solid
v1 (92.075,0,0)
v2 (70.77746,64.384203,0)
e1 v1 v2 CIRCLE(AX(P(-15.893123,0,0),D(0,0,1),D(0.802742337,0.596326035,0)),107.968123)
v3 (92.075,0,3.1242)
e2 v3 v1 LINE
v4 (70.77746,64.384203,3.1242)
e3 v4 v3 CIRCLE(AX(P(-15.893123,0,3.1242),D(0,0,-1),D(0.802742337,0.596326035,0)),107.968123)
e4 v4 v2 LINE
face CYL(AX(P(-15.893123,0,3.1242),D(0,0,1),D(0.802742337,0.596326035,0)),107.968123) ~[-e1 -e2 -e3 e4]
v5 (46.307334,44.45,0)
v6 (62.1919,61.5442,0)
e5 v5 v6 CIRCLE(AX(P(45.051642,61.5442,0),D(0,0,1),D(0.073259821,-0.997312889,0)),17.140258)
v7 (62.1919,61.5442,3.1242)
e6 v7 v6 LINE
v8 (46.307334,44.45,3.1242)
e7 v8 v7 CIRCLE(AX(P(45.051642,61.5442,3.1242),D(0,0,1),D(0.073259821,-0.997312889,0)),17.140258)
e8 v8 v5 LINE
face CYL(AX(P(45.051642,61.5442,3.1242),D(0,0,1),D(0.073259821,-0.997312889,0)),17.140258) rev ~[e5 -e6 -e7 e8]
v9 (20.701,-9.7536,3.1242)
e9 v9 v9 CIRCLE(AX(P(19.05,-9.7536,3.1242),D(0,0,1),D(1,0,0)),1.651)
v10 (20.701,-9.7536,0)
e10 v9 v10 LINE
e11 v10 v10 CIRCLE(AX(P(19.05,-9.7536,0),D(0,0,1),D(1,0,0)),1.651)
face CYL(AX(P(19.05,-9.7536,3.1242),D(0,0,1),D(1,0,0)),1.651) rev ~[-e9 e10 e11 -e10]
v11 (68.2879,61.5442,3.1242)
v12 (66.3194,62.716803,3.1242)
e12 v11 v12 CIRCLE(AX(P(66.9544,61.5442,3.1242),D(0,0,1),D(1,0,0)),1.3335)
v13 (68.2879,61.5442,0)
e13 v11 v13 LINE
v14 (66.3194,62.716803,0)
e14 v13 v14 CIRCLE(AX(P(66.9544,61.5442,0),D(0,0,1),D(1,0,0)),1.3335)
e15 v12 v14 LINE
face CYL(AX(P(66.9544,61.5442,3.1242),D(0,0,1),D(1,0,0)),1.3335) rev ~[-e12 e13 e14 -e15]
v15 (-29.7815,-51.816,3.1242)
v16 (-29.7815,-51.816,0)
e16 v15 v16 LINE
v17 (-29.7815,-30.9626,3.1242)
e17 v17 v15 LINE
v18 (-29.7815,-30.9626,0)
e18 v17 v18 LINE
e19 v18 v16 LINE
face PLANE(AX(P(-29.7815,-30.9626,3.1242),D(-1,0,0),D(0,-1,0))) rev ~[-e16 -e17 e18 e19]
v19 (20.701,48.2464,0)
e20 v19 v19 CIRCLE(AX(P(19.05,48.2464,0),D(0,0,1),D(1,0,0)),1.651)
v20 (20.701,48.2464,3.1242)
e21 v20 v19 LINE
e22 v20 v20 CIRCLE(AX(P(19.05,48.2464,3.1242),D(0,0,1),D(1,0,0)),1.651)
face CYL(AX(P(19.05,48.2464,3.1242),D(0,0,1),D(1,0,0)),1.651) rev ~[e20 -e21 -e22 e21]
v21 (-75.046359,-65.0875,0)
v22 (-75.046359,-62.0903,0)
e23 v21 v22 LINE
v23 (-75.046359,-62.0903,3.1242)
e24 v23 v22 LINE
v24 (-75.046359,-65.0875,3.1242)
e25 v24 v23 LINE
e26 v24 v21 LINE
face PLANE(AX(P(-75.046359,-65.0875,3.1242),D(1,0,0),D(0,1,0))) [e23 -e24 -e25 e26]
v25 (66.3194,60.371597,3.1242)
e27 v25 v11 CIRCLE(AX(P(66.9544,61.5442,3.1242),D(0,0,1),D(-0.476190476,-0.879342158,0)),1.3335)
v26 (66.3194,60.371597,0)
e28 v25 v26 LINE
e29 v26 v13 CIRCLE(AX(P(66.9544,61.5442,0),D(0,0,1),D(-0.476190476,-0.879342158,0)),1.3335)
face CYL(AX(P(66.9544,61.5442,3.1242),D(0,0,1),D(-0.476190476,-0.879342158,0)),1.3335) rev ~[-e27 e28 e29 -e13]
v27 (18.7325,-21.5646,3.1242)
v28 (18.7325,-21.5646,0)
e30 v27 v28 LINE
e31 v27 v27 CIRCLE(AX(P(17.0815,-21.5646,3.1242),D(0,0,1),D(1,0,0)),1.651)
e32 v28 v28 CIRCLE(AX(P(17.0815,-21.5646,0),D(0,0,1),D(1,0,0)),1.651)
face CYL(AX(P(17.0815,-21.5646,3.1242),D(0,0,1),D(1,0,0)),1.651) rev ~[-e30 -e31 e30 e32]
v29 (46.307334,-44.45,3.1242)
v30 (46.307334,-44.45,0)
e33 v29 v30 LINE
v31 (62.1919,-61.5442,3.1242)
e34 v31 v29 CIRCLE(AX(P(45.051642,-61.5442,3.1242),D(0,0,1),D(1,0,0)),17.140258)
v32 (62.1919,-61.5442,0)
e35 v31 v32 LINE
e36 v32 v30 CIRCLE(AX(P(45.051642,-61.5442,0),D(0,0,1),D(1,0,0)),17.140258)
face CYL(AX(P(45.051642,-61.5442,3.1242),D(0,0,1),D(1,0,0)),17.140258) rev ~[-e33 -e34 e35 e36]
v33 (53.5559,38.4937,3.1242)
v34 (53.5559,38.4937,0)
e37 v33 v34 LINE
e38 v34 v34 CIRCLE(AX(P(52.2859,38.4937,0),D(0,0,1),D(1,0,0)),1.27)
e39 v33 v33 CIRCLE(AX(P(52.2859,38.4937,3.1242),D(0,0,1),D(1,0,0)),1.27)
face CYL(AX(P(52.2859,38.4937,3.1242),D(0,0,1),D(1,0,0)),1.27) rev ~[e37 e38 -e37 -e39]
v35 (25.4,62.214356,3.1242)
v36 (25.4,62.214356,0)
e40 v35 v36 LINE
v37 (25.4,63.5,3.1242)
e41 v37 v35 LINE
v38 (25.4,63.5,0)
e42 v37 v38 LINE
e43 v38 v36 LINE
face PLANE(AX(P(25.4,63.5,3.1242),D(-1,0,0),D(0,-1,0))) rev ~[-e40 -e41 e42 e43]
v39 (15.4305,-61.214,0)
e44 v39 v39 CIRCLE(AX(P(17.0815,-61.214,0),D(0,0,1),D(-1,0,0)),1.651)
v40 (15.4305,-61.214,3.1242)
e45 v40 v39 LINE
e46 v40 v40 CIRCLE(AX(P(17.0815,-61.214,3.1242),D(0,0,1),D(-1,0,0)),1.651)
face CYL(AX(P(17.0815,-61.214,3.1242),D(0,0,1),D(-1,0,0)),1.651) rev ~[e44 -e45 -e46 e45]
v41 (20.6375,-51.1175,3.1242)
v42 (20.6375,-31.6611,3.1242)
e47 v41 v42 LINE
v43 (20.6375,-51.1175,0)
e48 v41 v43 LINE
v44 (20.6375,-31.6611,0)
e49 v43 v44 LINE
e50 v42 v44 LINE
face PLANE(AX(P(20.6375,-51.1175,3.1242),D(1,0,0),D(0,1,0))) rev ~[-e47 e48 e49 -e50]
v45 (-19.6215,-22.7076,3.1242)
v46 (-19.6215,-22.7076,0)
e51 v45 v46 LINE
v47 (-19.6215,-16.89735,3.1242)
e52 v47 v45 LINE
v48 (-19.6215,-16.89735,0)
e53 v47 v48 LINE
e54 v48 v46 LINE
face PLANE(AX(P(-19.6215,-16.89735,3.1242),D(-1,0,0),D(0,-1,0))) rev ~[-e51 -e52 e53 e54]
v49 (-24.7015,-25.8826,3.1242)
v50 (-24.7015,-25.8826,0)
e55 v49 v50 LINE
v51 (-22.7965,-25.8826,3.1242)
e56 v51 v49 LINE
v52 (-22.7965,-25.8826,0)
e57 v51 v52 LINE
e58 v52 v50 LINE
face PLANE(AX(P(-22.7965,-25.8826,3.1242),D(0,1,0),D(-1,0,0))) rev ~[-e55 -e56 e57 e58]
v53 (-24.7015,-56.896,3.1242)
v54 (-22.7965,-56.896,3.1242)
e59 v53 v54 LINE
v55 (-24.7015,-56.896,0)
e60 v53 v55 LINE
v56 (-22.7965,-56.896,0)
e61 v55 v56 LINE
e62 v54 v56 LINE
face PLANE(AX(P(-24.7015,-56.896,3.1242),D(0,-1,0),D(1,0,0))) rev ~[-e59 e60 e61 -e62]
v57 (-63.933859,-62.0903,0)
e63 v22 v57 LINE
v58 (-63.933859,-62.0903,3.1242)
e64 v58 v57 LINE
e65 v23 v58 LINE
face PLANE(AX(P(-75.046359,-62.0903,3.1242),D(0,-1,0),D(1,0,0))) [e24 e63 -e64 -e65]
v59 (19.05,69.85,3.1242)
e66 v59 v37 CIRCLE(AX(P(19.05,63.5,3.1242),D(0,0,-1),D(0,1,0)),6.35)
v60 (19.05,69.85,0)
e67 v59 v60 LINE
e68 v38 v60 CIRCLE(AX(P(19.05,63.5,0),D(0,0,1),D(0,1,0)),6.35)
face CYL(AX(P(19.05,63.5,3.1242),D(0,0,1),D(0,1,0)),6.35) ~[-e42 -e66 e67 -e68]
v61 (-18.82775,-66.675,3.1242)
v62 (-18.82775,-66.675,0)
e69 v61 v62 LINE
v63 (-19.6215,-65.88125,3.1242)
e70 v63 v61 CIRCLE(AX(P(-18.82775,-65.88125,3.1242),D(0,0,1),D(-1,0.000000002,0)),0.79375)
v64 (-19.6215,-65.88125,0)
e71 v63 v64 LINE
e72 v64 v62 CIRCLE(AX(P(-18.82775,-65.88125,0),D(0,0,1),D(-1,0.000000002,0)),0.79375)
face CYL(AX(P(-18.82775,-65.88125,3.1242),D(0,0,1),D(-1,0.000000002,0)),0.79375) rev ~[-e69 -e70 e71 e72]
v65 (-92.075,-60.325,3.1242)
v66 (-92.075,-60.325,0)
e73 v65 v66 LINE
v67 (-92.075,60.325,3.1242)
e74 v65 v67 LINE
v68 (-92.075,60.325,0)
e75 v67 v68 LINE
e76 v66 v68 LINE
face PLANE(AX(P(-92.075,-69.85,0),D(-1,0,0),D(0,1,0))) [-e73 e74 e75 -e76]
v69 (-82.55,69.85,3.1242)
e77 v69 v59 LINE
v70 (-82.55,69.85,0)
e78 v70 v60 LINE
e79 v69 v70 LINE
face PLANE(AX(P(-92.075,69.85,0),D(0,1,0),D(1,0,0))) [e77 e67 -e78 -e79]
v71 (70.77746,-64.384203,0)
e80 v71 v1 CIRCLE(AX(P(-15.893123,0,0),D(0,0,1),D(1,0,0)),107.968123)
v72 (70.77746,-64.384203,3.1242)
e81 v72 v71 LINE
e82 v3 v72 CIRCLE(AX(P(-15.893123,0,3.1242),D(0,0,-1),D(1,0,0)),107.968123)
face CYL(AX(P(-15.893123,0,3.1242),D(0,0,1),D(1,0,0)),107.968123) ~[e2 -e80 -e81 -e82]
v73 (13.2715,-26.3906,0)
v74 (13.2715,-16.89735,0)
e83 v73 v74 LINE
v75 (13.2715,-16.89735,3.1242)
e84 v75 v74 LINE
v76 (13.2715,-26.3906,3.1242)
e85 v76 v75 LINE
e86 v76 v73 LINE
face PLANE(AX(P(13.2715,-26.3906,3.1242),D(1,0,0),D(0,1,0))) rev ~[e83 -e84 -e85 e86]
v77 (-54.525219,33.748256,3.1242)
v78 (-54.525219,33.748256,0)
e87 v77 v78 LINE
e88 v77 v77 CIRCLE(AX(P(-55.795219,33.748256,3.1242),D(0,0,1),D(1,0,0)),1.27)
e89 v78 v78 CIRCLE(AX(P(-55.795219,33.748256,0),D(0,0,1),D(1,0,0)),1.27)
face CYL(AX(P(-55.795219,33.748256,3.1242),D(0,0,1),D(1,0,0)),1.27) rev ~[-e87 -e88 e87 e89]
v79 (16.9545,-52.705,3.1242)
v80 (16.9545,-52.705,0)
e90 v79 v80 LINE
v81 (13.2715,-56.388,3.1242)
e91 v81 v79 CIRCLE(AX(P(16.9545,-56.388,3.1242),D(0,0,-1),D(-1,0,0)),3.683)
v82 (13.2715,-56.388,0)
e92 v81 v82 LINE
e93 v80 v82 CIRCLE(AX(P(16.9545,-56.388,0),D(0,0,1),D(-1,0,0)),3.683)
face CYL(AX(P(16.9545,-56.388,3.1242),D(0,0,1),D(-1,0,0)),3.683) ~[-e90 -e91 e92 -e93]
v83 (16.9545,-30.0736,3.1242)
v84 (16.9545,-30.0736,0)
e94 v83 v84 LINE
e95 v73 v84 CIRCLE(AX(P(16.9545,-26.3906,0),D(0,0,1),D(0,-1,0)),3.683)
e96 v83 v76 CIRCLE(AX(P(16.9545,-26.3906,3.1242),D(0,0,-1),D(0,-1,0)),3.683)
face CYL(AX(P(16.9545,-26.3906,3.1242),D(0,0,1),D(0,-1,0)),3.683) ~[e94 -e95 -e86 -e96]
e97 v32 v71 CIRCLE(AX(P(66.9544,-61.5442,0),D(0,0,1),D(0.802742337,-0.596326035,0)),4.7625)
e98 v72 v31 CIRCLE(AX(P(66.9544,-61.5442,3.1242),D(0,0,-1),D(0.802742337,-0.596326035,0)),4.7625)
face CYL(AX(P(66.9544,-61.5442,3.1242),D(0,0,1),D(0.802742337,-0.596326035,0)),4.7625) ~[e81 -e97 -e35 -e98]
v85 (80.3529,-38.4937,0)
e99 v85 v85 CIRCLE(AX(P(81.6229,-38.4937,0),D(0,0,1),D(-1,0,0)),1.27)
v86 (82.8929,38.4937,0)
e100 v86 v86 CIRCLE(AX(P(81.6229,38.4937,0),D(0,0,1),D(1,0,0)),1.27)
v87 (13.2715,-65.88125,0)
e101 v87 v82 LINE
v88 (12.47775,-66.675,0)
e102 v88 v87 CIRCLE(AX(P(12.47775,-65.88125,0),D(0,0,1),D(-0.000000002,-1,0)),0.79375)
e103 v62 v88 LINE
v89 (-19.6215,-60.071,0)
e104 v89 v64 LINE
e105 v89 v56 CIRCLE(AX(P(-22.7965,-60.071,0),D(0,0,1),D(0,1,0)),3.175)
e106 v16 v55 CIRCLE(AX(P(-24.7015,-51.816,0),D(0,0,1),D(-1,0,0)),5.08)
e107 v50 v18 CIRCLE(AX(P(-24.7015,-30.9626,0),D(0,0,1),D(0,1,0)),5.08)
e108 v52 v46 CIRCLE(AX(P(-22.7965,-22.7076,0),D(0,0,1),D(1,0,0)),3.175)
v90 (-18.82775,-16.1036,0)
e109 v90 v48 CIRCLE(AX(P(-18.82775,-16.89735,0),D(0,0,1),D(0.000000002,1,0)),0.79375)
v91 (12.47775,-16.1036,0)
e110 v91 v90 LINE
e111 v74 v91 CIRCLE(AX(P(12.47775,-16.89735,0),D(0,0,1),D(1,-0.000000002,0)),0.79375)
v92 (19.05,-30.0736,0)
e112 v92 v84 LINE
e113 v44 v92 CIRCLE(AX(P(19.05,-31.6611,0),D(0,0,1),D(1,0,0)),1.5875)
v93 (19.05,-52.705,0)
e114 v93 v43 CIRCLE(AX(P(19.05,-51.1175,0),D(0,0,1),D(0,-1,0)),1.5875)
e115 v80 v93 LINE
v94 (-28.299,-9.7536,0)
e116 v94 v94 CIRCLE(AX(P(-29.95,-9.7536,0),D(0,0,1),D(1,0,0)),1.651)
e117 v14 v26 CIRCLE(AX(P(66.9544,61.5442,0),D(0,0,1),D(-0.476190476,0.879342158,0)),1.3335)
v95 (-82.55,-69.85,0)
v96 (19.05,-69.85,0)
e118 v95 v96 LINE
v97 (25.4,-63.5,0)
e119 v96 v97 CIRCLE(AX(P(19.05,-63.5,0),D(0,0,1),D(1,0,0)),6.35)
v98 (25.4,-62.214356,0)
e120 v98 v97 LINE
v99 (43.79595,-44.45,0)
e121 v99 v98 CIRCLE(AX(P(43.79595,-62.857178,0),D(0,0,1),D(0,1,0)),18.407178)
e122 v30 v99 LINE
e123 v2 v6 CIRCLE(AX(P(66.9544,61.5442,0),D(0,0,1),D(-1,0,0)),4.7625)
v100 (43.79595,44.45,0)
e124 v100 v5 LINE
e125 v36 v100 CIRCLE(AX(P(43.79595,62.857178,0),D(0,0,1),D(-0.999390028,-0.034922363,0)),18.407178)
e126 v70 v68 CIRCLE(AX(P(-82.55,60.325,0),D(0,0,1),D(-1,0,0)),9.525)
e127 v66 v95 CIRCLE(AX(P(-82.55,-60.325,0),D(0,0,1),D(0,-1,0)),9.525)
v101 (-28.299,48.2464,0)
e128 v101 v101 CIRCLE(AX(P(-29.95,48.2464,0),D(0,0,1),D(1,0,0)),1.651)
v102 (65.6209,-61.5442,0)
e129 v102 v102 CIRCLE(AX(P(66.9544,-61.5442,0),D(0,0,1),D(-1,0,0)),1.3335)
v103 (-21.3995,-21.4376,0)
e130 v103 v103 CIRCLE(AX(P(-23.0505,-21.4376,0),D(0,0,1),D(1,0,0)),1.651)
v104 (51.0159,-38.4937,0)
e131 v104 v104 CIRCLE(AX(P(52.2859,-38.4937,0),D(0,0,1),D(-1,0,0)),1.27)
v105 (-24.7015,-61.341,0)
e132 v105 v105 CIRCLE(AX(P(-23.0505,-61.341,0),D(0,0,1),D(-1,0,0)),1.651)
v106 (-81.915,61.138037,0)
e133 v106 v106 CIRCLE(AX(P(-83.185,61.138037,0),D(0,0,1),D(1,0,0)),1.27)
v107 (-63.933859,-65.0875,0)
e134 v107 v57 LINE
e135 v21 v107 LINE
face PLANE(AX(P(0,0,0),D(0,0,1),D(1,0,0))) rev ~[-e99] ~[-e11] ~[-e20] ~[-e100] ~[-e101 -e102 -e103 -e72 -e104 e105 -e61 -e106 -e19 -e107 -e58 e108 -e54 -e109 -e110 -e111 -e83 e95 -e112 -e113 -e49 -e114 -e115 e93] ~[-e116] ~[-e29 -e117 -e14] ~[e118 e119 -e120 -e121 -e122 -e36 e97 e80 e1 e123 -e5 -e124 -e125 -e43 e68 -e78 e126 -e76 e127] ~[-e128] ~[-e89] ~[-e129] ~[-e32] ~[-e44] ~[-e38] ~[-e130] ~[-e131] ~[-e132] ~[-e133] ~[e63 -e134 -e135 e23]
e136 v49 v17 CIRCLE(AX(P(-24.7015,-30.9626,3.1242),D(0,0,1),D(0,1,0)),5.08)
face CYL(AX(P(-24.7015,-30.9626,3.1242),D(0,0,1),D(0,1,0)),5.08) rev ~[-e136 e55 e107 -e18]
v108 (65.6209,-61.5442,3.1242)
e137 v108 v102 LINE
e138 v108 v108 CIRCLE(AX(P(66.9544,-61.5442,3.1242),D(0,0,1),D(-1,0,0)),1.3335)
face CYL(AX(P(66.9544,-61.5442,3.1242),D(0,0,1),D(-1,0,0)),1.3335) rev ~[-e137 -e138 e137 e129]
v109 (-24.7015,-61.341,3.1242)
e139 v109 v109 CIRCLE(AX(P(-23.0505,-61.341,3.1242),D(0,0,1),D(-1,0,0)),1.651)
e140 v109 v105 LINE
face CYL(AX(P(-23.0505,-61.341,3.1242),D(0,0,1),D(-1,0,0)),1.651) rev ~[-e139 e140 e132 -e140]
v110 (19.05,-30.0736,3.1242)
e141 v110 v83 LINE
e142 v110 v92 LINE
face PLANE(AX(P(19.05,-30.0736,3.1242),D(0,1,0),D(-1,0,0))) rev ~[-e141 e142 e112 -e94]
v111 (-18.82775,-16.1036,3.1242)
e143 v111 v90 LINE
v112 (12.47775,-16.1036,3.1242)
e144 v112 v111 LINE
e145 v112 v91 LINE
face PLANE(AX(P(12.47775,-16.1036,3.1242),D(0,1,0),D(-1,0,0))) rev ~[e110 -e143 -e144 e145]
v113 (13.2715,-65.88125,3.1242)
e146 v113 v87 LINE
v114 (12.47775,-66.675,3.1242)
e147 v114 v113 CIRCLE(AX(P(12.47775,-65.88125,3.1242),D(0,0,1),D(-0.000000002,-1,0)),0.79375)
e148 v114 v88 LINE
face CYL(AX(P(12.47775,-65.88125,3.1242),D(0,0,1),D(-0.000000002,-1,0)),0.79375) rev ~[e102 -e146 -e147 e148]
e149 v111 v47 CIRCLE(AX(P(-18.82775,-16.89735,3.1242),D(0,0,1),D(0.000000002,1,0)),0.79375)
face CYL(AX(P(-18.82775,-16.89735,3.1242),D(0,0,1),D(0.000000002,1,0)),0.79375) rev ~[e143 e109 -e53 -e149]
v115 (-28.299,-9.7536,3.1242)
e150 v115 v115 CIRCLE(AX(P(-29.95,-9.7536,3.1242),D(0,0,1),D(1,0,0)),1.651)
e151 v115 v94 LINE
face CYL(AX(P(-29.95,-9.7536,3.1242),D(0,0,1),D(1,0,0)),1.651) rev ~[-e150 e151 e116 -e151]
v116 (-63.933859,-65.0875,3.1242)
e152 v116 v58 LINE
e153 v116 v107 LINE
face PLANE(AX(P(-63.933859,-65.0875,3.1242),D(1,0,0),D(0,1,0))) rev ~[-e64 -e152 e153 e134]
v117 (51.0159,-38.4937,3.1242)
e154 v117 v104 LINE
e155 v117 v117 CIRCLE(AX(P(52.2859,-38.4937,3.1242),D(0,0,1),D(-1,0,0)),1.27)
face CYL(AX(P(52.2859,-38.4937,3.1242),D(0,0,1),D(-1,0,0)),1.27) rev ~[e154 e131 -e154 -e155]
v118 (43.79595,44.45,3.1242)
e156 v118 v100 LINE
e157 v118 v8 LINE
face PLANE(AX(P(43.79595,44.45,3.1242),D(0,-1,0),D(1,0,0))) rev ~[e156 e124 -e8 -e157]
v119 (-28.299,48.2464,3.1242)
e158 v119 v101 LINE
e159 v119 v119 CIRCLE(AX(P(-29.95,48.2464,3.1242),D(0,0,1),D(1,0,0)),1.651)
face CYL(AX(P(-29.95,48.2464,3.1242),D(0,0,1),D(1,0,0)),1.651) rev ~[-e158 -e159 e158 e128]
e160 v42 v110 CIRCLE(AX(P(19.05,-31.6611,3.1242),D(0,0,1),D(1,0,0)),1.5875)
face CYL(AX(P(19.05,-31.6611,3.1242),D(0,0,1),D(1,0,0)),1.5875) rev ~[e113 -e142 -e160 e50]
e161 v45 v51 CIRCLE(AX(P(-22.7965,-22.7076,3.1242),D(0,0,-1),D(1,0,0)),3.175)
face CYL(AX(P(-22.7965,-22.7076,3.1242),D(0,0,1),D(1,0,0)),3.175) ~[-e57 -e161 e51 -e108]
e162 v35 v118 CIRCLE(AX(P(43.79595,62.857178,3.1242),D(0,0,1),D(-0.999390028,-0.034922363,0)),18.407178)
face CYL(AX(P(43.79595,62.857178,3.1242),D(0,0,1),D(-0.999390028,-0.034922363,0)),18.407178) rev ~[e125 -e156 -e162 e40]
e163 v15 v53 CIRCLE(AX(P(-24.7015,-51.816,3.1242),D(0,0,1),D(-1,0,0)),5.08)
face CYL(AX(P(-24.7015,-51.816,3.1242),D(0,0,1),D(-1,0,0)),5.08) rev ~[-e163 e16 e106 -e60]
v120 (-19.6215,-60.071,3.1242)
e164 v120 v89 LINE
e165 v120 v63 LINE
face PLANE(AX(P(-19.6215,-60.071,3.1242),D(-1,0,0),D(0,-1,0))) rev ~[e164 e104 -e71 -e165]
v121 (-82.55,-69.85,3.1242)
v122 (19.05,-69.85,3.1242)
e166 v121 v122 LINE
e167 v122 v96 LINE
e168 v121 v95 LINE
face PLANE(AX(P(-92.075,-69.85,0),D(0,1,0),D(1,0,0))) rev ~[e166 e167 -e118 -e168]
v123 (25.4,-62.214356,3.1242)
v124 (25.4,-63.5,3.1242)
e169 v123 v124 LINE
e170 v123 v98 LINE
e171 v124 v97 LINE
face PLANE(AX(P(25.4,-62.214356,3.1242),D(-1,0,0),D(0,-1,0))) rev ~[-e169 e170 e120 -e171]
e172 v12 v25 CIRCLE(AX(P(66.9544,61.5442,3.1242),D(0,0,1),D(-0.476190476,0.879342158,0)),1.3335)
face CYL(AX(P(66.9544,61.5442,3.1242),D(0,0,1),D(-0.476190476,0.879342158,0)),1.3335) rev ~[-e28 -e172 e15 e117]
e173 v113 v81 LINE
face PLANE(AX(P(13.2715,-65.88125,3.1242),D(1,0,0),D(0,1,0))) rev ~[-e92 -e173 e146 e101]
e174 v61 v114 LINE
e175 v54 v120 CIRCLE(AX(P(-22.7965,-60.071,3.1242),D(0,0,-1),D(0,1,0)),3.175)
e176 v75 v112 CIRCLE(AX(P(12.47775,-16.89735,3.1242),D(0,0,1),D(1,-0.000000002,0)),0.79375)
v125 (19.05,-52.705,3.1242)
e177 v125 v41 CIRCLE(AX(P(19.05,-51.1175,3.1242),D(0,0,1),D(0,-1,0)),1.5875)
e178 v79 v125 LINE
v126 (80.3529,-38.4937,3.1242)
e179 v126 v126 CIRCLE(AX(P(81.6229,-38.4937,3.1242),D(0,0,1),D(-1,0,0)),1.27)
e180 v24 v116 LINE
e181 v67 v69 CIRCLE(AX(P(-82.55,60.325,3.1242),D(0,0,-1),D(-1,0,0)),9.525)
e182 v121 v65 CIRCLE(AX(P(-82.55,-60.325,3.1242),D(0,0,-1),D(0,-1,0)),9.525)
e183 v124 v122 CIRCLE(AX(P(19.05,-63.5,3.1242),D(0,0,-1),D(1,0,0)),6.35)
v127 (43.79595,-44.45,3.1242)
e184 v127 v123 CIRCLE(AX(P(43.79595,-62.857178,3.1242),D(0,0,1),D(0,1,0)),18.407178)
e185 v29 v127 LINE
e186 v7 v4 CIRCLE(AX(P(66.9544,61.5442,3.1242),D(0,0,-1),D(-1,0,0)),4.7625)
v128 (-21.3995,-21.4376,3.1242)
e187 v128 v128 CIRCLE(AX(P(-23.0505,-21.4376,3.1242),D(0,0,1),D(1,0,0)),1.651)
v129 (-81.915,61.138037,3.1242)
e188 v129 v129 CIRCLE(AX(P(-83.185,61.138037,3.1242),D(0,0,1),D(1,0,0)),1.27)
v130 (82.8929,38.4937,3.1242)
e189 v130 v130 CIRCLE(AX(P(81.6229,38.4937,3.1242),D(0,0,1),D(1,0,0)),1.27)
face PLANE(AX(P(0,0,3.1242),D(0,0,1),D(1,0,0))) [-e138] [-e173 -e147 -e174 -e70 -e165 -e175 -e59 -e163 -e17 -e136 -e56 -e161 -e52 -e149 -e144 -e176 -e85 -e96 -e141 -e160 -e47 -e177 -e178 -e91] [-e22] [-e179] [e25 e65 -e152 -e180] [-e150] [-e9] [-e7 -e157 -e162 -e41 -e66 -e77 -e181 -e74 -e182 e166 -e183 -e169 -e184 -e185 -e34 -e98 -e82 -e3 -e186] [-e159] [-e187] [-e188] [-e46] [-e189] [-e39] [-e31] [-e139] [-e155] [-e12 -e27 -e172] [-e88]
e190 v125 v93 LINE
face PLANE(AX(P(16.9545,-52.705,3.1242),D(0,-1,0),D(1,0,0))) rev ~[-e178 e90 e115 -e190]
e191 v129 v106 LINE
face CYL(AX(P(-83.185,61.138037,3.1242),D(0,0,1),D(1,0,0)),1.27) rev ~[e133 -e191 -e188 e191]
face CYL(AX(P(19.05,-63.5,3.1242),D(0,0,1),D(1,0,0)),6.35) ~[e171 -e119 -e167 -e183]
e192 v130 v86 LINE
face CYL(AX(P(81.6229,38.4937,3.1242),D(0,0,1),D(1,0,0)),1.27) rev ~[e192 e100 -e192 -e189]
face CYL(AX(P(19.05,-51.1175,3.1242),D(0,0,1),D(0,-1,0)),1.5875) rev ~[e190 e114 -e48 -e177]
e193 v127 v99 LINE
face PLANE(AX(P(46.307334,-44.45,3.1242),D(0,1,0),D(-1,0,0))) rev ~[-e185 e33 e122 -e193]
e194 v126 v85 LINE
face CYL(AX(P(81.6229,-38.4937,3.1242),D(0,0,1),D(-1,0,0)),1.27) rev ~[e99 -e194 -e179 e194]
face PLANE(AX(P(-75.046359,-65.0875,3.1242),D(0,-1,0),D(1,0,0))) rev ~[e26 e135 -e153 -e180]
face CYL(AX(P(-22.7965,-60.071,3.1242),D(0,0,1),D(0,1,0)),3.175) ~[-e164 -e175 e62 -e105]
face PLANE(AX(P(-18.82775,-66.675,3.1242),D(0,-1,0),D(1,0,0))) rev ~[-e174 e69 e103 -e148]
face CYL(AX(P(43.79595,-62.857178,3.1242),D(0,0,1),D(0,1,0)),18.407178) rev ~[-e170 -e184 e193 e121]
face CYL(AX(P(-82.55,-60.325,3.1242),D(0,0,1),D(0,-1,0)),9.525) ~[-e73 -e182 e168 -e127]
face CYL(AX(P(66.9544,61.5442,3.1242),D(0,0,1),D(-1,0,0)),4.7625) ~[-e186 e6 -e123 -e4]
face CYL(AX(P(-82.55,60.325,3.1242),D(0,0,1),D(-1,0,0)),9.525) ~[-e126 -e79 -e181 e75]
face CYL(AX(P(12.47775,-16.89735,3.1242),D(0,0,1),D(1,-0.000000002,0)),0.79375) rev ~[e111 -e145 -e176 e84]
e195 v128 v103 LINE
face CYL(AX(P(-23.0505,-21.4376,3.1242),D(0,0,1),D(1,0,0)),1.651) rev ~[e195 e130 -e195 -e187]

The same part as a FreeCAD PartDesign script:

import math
import FreeCAD as App
import Part
import Sketcher
from FreeCAD import Vector
Q = App.Units.Quantity

doc = App.newDocument("Part")
body = doc.addObject("PartDesign::Body", "Body")

sketch1 = body.newObject("Sketcher::SketchObject", "Sketch")
sketch1.AttachmentSupport = (doc.getObject("XY_Plane"), [""])
sketch1.MapMode = "FlatFace"
sketch1.addGeometry([
    Part.LineSegment(Vector(-92, 70, 0), Vector(-92, -70, 0)),
    Part.LineSegment(Vector(-92, -70, 0), Vector(92, -70, 0)),
    Part.LineSegment(Vector(92, -70, 0), Vector(92, 70, 0)),
    Part.LineSegment(Vector(92, 70, 0), Vector(-92, 70, 0)),
], False)
sketch1.addConstraint([
    Sketcher.Constraint("Coincident", 0, 2, 1, 1),
    Sketcher.Constraint("Coincident", 1, 2, 2, 1),
    Sketcher.Constraint("Coincident", 2, 2, 3, 1),
    Sketcher.Constraint("Coincident", 3, 2, 0, 1),
    Sketcher.Constraint("Vertical", 0),
    Sketcher.Constraint("Horizontal", 1),
    Sketcher.Constraint("Vertical", 2),
    Sketcher.Constraint("Horizontal", 3),
    Sketcher.Constraint("Symmetric", 0, 2, 2, 2, -1, 1),
    Sketcher.Constraint("DistanceY", 0, 2, 0, 1, Q("5.5 in")),
    Sketcher.Constraint("DistanceX", 1, 1, 1, 2, Q("7.25 in")),
])
pad1 = body.newObject("PartDesign::Pad", "Pad")
pad1.Profile = sketch1
pad1.Length = Q("0.123 in")

sketch2 = body.newObject("Sketcher::SketchObject", "Sketch001")
sketch2.AttachmentSupport = (doc.getObject("XY_Plane"), [""])
sketch2.MapMode = "FlatFace"
sketch2.AttachmentOffset = App.Placement(Vector(0, 0, 0.123 * 25.4), App.Rotation())
sketch2.addGeometry([
    Part.ArcOfCircle(Part.Circle(Vector(67, 61.5, 0), Vector(0, 0, 1), 1.3), math.radians(0), math.radians(118)),
    Part.ArcOfCircle(Part.Circle(Vector(67, 61.5, 0), Vector(0, 0, 1), 1.3), math.radians(118), math.radians(242)),
    Part.ArcOfCircle(Part.Circle(Vector(67, 61.5, 0), Vector(0, 0, 1), 1.3), math.radians(-118), math.radians(0)),
    Part.Circle(Vector(67, -61.5, 0), Vector(0, 0, 1), 1.3),
], False)
sketch2.addConstraint([
    Sketcher.Constraint("Tangent", 0, 2, 1, 1),
    Sketcher.Constraint("Tangent", 1, 2, 2, 1),
    Sketcher.Constraint("Tangent", 2, 2, 0, 1),
    Sketcher.Constraint("Equal", 2, 3),
    Sketcher.Constraint("Symmetric", 0, 3, 3, 3, -1),
    Sketcher.Constraint("Horizontal", 1, 3, 2, 2),
    Sketcher.Constraint("Vertical", 0, 2, 1, 2),
    Sketcher.Constraint("Diameter", 3, Q("0.105 in")),
    Sketcher.Constraint("DistanceX", -1, 1, 0, 3, Q("2.636 in")),
    Sketcher.Constraint("DistanceY", -1, 1, 0, 3, Q("2.423 in")),
    Sketcher.Constraint("DistanceX", -1, 1, 0, 2, Q("2.611 in")),
])
pocket1 = body.newObject("PartDesign::Pocket", "Pocket")
pocket1.Profile = sketch2
pocket1.Type = "ThroughAll"

sketch3 = body.newObject("Sketcher::SketchObject", "Sketch002")
sketch3.AttachmentSupport = (doc.getObject("XY_Plane"), [""])
sketch3.MapMode = "FlatFace"
sketch3.AttachmentOffset = App.Placement(Vector(0, 0, 0.123 * 25.4), App.Rotation())
sketch3.addGeometry([
    Part.Circle(Vector(52.3, 38.5, 0), Vector(0, 0, 1), 1.3),
    Part.Circle(Vector(81.6, 38.5, 0), Vector(0, 0, 1), 1.3),
    Part.Circle(Vector(81.6, -38.5, 0), Vector(0, 0, 1), 1.3),
    Part.Circle(Vector(52.3, -38.5, 0), Vector(0, 0, 1), 1.3),
], False)
sketch3.addConstraint([
    Sketcher.Constraint("Equal", 0, 1),
    Sketcher.Constraint("Equal", 1, 2),
    Sketcher.Constraint("Equal", 2, 3),
    Sketcher.Constraint("Symmetric", 1, 3, 2, 3, -1),
    Sketcher.Constraint("Symmetric", 0, 3, 3, 3, -1),
    Sketcher.Constraint("Horizontal", 0, 3, 1, 3),
    Sketcher.Constraint("Diameter", 0, Q("0.1 in")),
    Sketcher.Constraint("DistanceX", 0, 3, 1, 3, Q("1.155 in")),
    Sketcher.Constraint("DistanceY", 2, 3, 1, 3, Q("3.031 in")),
    Sketcher.Constraint("DistanceX", -1, 1, 0, 3, Q("2.0585 in")),
])
pocket2 = body.newObject("PartDesign::Pocket", "Pocket001")
pocket2.Profile = sketch3
pocket2.Type = "ThroughAll"

sketch4 = body.newObject("Sketcher::SketchObject", "Sketch003")
sketch4.AttachmentSupport = (doc.getObject("XY_Plane"), [""])
sketch4.MapMode = "FlatFace"
sketch4.AttachmentOffset = App.Placement(Vector(0, 0, 0.123 * 25.4), App.Rotation())
sketch4.addGeometry([
    Part.ArcOfCircle(Part.Circle(Vector(19.05, 63.5, 0), Vector(0, 0, 1), 6.35), math.radians(0), math.radians(90)),
    Part.LineSegment(Vector(25.4, 63.5, 0), Vector(25.4, 62.214356, 0)),
    Part.ArcOfCircle(Part.Circle(Vector(43.79595, 62.857178, 0), Vector(0, 0, 1), 18.407178), math.radians(-177.998689), math.radians(-90)),
    Part.LineSegment(Vector(43.79595, 44.45, 0), Vector(46.307334, 44.45, 0)),
    Part.ArcOfCircle(Part.Circle(Vector(45.051642, 61.5442, 0), Vector(0, 0, 1), 17.140258), math.radians(-85.798758), math.radians(0)),
    Part.ArcOfCircle(Part.Circle(Vector(66.9544, 61.5442, 0), Vector(0, 0, 1), 4.7625), math.radians(36.60722), math.radians(180)),
    Part.ArcOfCircle(Part.Circle(Vector(-15.893123, 0, 0), Vector(0, 0, 1), 107.968123), math.radians(0), math.radians(36.60722)),
    Part.LineSegment(Vector(92.075, 0, 0), Vector(92.075, 69.85, 0)),
    Part.LineSegment(Vector(92.075, 69.85, 0), Vector(19.05, 69.85, 0)),
    Part.LineSegment(Vector(92.075, -69.85, 0), Vector(92.075, 0, 0)),
    Part.ArcOfCircle(Part.Circle(Vector(-15.893123, 0, 0), Vector(0, 0, 1), 107.968123), math.radians(-36.60722), math.radians(0)),
    Part.ArcOfCircle(Part.Circle(Vector(66.9544, -61.5442, 0), Vector(0, 0, 1), 4.7625), math.radians(180), math.radians(323.39278)),
    Part.ArcOfCircle(Part.Circle(Vector(45.051642, -61.5442, 0), Vector(0, 0, 1), 17.140258), math.radians(0), math.radians(85.798758)),
    Part.LineSegment(Vector(46.307334, -44.45, 0), Vector(43.79595, -44.45, 0)),
    Part.ArcOfCircle(Part.Circle(Vector(43.79595, -62.857178, 0), Vector(0, 0, 1), 18.407178), math.radians(90), math.radians(177.998689)),
    Part.LineSegment(Vector(25.4, -62.214356, 0), Vector(25.4, -63.5, 0)),
    Part.ArcOfCircle(Part.Circle(Vector(19.05, -63.5, 0), Vector(0, 0, 1), 6.35), math.radians(-90), math.radians(0)),
    Part.LineSegment(Vector(19.05, -69.85, 0), Vector(92.075, -69.85, 0)),
    Part.ArcOfCircle(Part.Circle(Vector(-82.55, 60.325, 0), Vector(0, 0, 1), 9.525), math.radians(90), math.radians(180)),
    Part.LineSegment(Vector(-82.55, 69.85, 0), Vector(-92.075, 69.85, 0)),
    Part.LineSegment(Vector(-92.075, 69.85, 0), Vector(-92.075, 60.325, 0)),
    Part.LineSegment(Vector(-92.075, -69.85, 0), Vector(-82.55, -69.85, 0)),
    Part.ArcOfCircle(Part.Circle(Vector(-82.55, -60.325, 0), Vector(0, 0, 1), 9.525), math.radians(180), math.radians(270)),
    Part.LineSegment(Vector(-92.075, -60.325, 0), Vector(-92.075, -69.85, 0)),
], False)
sketch4.addConstraint([
    Sketcher.Constraint("Coincident", 0, 1, 1, 1),
    Sketcher.Constraint("Coincident", 1, 2, 2, 1),
    Sketcher.Constraint("Coincident", 2, 2, 3, 1),
    Sketcher.Constraint("Coincident", 3, 2, 4, 1),
    Sketcher.Constraint("Coincident", 4, 2, 5, 2),
    Sketcher.Constraint("Coincident", 5, 1, 6, 2),
    Sketcher.Constraint("Coincident", 6, 1, 7, 1),
    Sketcher.Constraint("Coincident", 7, 2, 8, 1),
    Sketcher.Constraint("Coincident", 8, 2, 0, 2),
    Sketcher.Constraint("Coincident", 9, 2, 10, 2),
    Sketcher.Constraint("Coincident", 10, 1, 11, 2),
    Sketcher.Constraint("Coincident", 11, 1, 12, 1),
    Sketcher.Constraint("Coincident", 12, 2, 13, 1),
    Sketcher.Constraint("Coincident", 13, 2, 14, 1),
    Sketcher.Constraint("Coincident", 14, 2, 15, 1),
    Sketcher.Constraint("Coincident", 15, 2, 16, 2),
    Sketcher.Constraint("Coincident", 16, 1, 17, 1),
    Sketcher.Constraint("Coincident", 17, 2, 9, 1),
    Sketcher.Constraint("Coincident", 18, 1, 19, 1),
    Sketcher.Constraint("Coincident", 19, 2, 20, 1),
    Sketcher.Constraint("Coincident", 20, 2, 18, 2),
    Sketcher.Constraint("Coincident", 21, 2, 22, 2),
    Sketcher.Constraint("Coincident", 22, 1, 23, 1),
    Sketcher.Constraint("Coincident", 23, 2, 21, 1),
    Sketcher.Constraint("Vertical", 1),
    Sketcher.Constraint("Horizontal", 3),
    Sketcher.Constraint("Vertical", 7),
    Sketcher.Constraint("Horizontal", 8),
    Sketcher.Constraint("Vertical", 9),
    Sketcher.Constraint("Horizontal", 13),
    Sketcher.Constraint("Vertical", 15),
    Sketcher.Constraint("Horizontal", 17),
    Sketcher.Constraint("Horizontal", 19),
    Sketcher.Constraint("Vertical", 20),
    Sketcher.Constraint("Horizontal", 21),
    Sketcher.Constraint("Vertical", 23),
    Sketcher.Constraint("Coincident", 10, 3, 6, 3),
    Sketcher.Constraint("Coincident", 9, 2, 6, 1),
    Sketcher.Constraint("PointOnObject", 6, 3, -1),
    Sketcher.Constraint("PointOnObject", 6, 1, -1),
    Sketcher.Constraint("Radius", 0, Q("0.25 in")),
    Sketcher.Constraint("Radius", 16, Q("0.25 in")),
    Sketcher.Constraint("DistanceX", -1, 1, 0, 1, Q("1 in")),
    Sketcher.Constraint("DistanceX", -1, 1, 14, 2, Q("1 in")),
    Sketcher.Constraint("Radius", 5, Q("0.1875 in")),
    Sketcher.Constraint("Radius", 11, Q("0.1875 in")),
    Sketcher.Constraint("Radius", 18, Q("0.375 in")),
    Sketcher.Constraint("Radius", 22, Q("0.375 in")),
    Sketcher.Constraint("DistanceX", 18, 3, 0, 3, Q("4 in")),
    Sketcher.Constraint("DistanceX", 22, 3, 16, 3, Q("4 in")),
    Sketcher.Constraint("DistanceX", 18, 1, 8, 2, Q("4 in")),
    Sketcher.Constraint("DistanceX", 18, 1, 0, 3, Q("4 in")),
    Sketcher.Constraint("DistanceX", 21, 2, 16, 1, Q("4 in")),
    Sketcher.Constraint("DistanceX", 21, 2, 16, 3, Q("4 in")),
    Sketcher.Constraint("DistanceY", 7, 1, 7, 2, Q("2.75 in")),
    Sketcher.Constraint("DistanceY", 9, 1, 9, 2, Q("2.75 in")),
    Sketcher.Constraint("DistanceY", -1, 1, 0, 1, Q("2.5 in")),
    Sketcher.Constraint("DistanceY", 15, 2, -1, 1, Q("2.5 in")),
    Sketcher.Constraint("DistanceX", 8, 2, 8, 1, Q("2.875 in")),
    Sketcher.Constraint("DistanceY", 20, 2, 20, 1, Q("0.375 in")),
    Sketcher.Constraint("DistanceY", 23, 2, 23, 1, Q("0.375 in")),
    Sketcher.Constraint("DistanceY", -1, 1, 2, 2, Q("1.75 in")),
    Sketcher.Constraint("DistanceY", 12, 2, -1, 1, Q("1.75 in")),
    Sketcher.Constraint("DistanceY", -1, 1, 18, 1, Q("2.75 in")),
    Sketcher.Constraint("DistanceY", 21, 2, -1, 1, Q("2.75 in")),
    Sketcher.Constraint("DistanceY", -1, 1, 4, 3, Q("2.423 in")),
    Sketcher.Constraint("DistanceX", -1, 1, 5, 3, Q("2.636 in")),
    Sketcher.Constraint("DistanceY", -1, 1, 5, 3, Q("2.423 in")),
    Sketcher.Constraint("DistanceX", -1, 1, 11, 3, Q("2.636 in")),
    Sketcher.Constraint("DistanceY", 12, 3, -1, 1, Q("2.423 in")),
    Sketcher.Constraint("DistanceY", -1, 1, 4, 2, Q("2.423 in")),
    Sketcher.Constraint("DistanceY", 11, 1, -1, 1, Q("2.423 in")),
    Sketcher.Constraint("Radius", 2, 18.407178),
    Sketcher.Constraint("Radius", 4, 17.140258),
    Sketcher.Constraint("Radius", 12, 17.140258),
    Sketcher.Constraint("Radius", 14, 18.407178),
    Sketcher.Constraint("DistanceX", 3, 1, 3, 2, 2.511384),
    Sketcher.Constraint("DistanceX", 13, 2, 13, 1, 2.511384),
    Sketcher.Constraint("DistanceY", 1, 2, 1, 1, 1.285644),
    Sketcher.Constraint("DistanceY", 15, 2, 15, 1, 1.285644),
    Sketcher.Constraint("DistanceX", -1, 1, 5, 1, 70.77746),
    Sketcher.Constraint("DistanceX", -1, 1, 10, 1, 70.77746),
])
pocket3 = body.newObject("PartDesign::Pocket", "Pocket002")
pocket3.Profile = sketch4
pocket3.Type = "ThroughAll"

sketch5 = body.newObject("Sketcher::SketchObject", "Sketch004")
sketch5.AttachmentSupport = (doc.getObject("XY_Plane"), [""])
sketch5.MapMode = "FlatFace"
sketch5.AttachmentOffset = App.Placement(Vector(0, 0, 0.123 * 25.4), App.Rotation())
sketch5.addGeometry([
    Part.LineSegment(Vector(12.5, -16.1, 0), Vector(-18.8, -16.1, 0)),
    Part.ArcOfCircle(Part.Circle(Vector(-18.8, -16.9, 0), Vector(0, 0, 1), 0.8), math.radians(90), math.radians(180)),
    Part.LineSegment(Vector(-19.6, -16.9, 0), Vector(-19.6, -22.7, 0)),
    Part.ArcOfCircle(Part.Circle(Vector(-22.8, -22.7, 0), Vector(0, 0, 1), 3.2), math.radians(-90), math.radians(0)),
    Part.LineSegment(Vector(-22.8, -25.9, 0), Vector(-24.7, -25.9, 0)),
    Part.ArcOfCircle(Part.Circle(Vector(-24.7, -31, 0), Vector(0, 0, 1), 5.1), math.radians(90), math.radians(180)),
    Part.LineSegment(Vector(-29.8, -31, 0), Vector(-29.8, -51.8, 0)),
    Part.ArcOfCircle(Part.Circle(Vector(-24.7, -51.8, 0), Vector(0, 0, 1), 5.1), math.radians(-180), math.radians(-90)),
    Part.LineSegment(Vector(-24.7, -56.9, 0), Vector(-22.8, -56.9, 0)),
    Part.ArcOfCircle(Part.Circle(Vector(-22.8, -60.1, 0), Vector(0, 0, 1), 3.2), math.radians(0), math.radians(90)),
    Part.LineSegment(Vector(-19.6, -60.1, 0), Vector(-19.6, -65.9, 0)),
    Part.ArcOfCircle(Part.Circle(Vector(-18.8, -65.9, 0), Vector(0, 0, 1), 0.8), math.radians(180), math.radians(270)),
    Part.LineSegment(Vector(-18.8, -66.7, 0), Vector(12.5, -66.7, 0)),
    Part.ArcOfCircle(Part.Circle(Vector(12.5, -65.9, 0), Vector(0, 0, 1), 0.8), math.radians(-90), math.radians(0)),
    Part.LineSegment(Vector(13.3, -65.9, 0), Vector(13.3, -56.4, 0)),
    Part.ArcOfCircle(Part.Circle(Vector(17, -56.4, 0), Vector(0, 0, 1), 3.7), math.radians(90), math.radians(180)),
    Part.LineSegment(Vector(17, -52.7, 0), Vector(19.1, -52.7, 0)),
    Part.ArcOfCircle(Part.Circle(Vector(19.1, -51.1, 0), Vector(0, 0, 1), 1.6), math.radians(-90), math.radians(0)),
    Part.LineSegment(Vector(20.6, -51.1, 0), Vector(20.6, -31.7, 0)),
    Part.ArcOfCircle(Part.Circle(Vector(19.1, -31.7, 0), Vector(0, 0, 1), 1.6), math.radians(0), math.radians(90)),
    Part.LineSegment(Vector(19.1, -30.1, 0), Vector(17, -30.1, 0)),
    Part.ArcOfCircle(Part.Circle(Vector(17, -26.4, 0), Vector(0, 0, 1), 3.7), math.radians(180), math.radians(270)),
    Part.LineSegment(Vector(13.3, -26.4, 0), Vector(13.3, -16.9, 0)),
    Part.ArcOfCircle(Part.Circle(Vector(12.5, -16.9, 0), Vector(0, 0, 1), 0.8), math.radians(0), math.radians(90)),
    Part.Circle(Vector(17.1, -21.6, 0), Vector(0, 0, 1), 1.7),
    Part.Circle(Vector(-23.1, -21.4, 0), Vector(0, 0, 1), 1.7),
    Part.Circle(Vector(17.1, -61.2, 0), Vector(0, 0, 1), 1.7),
    Part.Circle(Vector(-23.1, -61.3, 0), Vector(0, 0, 1), 1.7),
], False)
sketch5.addConstraint([
    Sketcher.Constraint("Tangent", 0, 2, 1, 1),
    Sketcher.Constraint("Tangent", 1, 2, 2, 1),
    Sketcher.Constraint("Tangent", 2, 2, 3, 2),
    Sketcher.Constraint("Tangent", 3, 1, 4, 1),
    Sketcher.Constraint("Tangent", 4, 2, 5, 1),
    Sketcher.Constraint("Tangent", 5, 2, 6, 1),
    Sketcher.Constraint("Tangent", 6, 2, 7, 1),
    Sketcher.Constraint("Tangent", 7, 2, 8, 1),
    Sketcher.Constraint("Tangent", 8, 2, 9, 2),
    Sketcher.Constraint("Tangent", 9, 1, 10, 1),
    Sketcher.Constraint("Tangent", 10, 2, 11, 1),
    Sketcher.Constraint("Tangent", 11, 2, 12, 1),
    Sketcher.Constraint("Tangent", 12, 2, 13, 1),
    Sketcher.Constraint("Tangent", 13, 2, 14, 1),
    Sketcher.Constraint("Tangent", 14, 2, 15, 2),
    Sketcher.Constraint("Tangent", 15, 1, 16, 1),
    Sketcher.Constraint("Tangent", 16, 2, 17, 1),
    Sketcher.Constraint("Tangent", 17, 2, 18, 1),
    Sketcher.Constraint("Tangent", 18, 2, 19, 1),
    Sketcher.Constraint("Tangent", 19, 2, 20, 1),
    Sketcher.Constraint("Tangent", 20, 2, 21, 2),
    Sketcher.Constraint("Tangent", 21, 1, 22, 1),
    Sketcher.Constraint("Tangent", 22, 2, 23, 1),
    Sketcher.Constraint("Tangent", 23, 2, 0, 1),
    Sketcher.Constraint("Horizontal", 0),
    Sketcher.Constraint("Vertical", 2),
    Sketcher.Constraint("Horizontal", 4),
    Sketcher.Constraint("Vertical", 6),
    Sketcher.Constraint("Horizontal", 8),
    Sketcher.Constraint("Vertical", 10),
    Sketcher.Constraint("Horizontal", 12),
    Sketcher.Constraint("Vertical", 14),
    Sketcher.Constraint("Horizontal", 16),
    Sketcher.Constraint("Vertical", 18),
    Sketcher.Constraint("Horizontal", 20),
    Sketcher.Constraint("Vertical", 22),
    Sketcher.Constraint("Equal", 5, 7),
    Sketcher.Constraint("Equal", 3, 9),
    Sketcher.Constraint("Equal", 1, 11),
    Sketcher.Constraint("Equal", 11, 13),
    Sketcher.Constraint("Equal", 17, 19),
    Sketcher.Constraint("Equal", 15, 21),
    Sketcher.Constraint("Equal", 13, 23),
    Sketcher.Constraint("Equal", 24, 25),
    Sketcher.Constraint("Equal", 25, 26),
    Sketcher.Constraint("Equal", 26, 27),
    Sketcher.Constraint("Vertical", 3, 3, 9, 3),
    Sketcher.Constraint("Vertical", 15, 3, 21, 3),
    Sketcher.Constraint("Vertical", 24, 3, 26, 3),
    Sketcher.Constraint("Vertical", 25, 3, 27, 3),
    Sketcher.Constraint("Equal", 2, 10),
    Sketcher.Constraint("Equal", 14, 22),
    Sketcher.Constraint("Radius", 5, Q("0.2 in")),
    Sketcher.Constraint("Diameter", 24, Q("0.13 in")),
    Sketcher.Constraint("Radius", 1, Q("0.03125 in")),
    Sketcher.Constraint("Radius", 3, Q("0.125 in")),
    Sketcher.Constraint("Radius", 15, Q("0.145 in")),
    Sketcher.Constraint("Radius", 17, Q("0.0625 in")),
    Sketcher.Constraint("DistanceX", 5, 3, 1, 2, Q("0.2 in")),
    Sketcher.Constraint("DistanceY", 6, 2, 6, 1, Q("0.821 in")),
    Sketcher.Constraint("DistanceY", 18, 1, 18, 2, Q("0.766 in")),
    Sketcher.Constraint("DistanceY", 7, 3, -1, 1, Q("2.04 in")),
    Sketcher.Constraint("DistanceX", -1, 1, 17, 3, Q("0.75 in")),
    Sketcher.Constraint("DistanceY", 26, 3, -1, 1, Q("2.41 in")),
    Sketcher.Constraint("DistanceX", 7, 3, 15, 3, Q("1.64 in")),
    Sketcher.Constraint("DistanceY", 21, 3, 24, 3, Q("0.19 in")),
    Sketcher.Constraint("DistanceX", 25, 3, 3, 3, Q("0.01 in")),
    Sketcher.Constraint("DistanceY", 3, 3, 25, 3, Q("0.05 in")),
    Sketcher.Constraint("DistanceY", 27, 3, 9, 3, Q("0.05 in")),
    Sketcher.Constraint("DistanceY", 25, 3, 0, 2, Q("0.21 in")),
    Sketcher.Constraint("DistanceX", 13, 2, 26, 3, Q("0.15 in")),
    Sketcher.Constraint("DistanceX", 14, 2, 17, 2, Q("0.29 in")),
])
pocket4 = body.newObject("PartDesign::Pocket", "Pocket003")
pocket4.Profile = sketch5
pocket4.Type = "ThroughAll"

sketch6 = body.newObject("Sketcher::SketchObject", "Sketch005")
sketch6.AttachmentSupport = (doc.getObject("XY_Plane"), [""])
sketch6.MapMode = "FlatFace"
sketch6.AttachmentOffset = App.Placement(Vector(0, 0, 0.123 * 25.4), App.Rotation())
sketch6.addGeometry([
    Part.Circle(Vector(-29.9, 48.2, 0), Vector(0, 0, 1), 1.7),
    Part.Circle(Vector(19.1, 48.2, 0), Vector(0, 0, 1), 1.7),
    Part.Circle(Vector(19.1, -9.8, 0), Vector(0, 0, 1), 1.7),
    Part.Circle(Vector(-29.9, -9.8, 0), Vector(0, 0, 1), 1.7),
], False)
sketch6.addConstraint([
    Sketcher.Constraint("Equal", 0, 1),
    Sketcher.Constraint("Equal", 1, 2),
    Sketcher.Constraint("Equal", 2, 3),
    Sketcher.Constraint("Horizontal", 0, 3, 1, 3),
    Sketcher.Constraint("Horizontal", 2, 3, 3, 3),
    Sketcher.Constraint("Vertical", 1, 3, 2, 3),
    Sketcher.Constraint("Vertical", 0, 3, 3, 3),
    Sketcher.Constraint("Diameter", 0, Q("0.13 in")),
    Sketcher.Constraint("DistanceX", -1, 1, 1, 3, Q("0.75 in")),
    Sketcher.Constraint("DistanceY", 2, 3, -1, 1, Q("0.384 in")),
    Sketcher.Constraint("DistanceX", 0, 3, -1, 1, 29.95),
    Sketcher.Constraint("DistanceY", -1, 1, 0, 3, 48.2464),
])
pocket5 = body.newObject("PartDesign::Pocket", "Pocket004")
pocket5.Profile = sketch6
pocket5.Type = "ThroughAll"

sketch7 = body.newObject("Sketcher::SketchObject", "Sketch006")
sketch7.AttachmentSupport = (doc.getObject("XY_Plane"), [""])
sketch7.MapMode = "FlatFace"
sketch7.AttachmentOffset = App.Placement(Vector(0, 0, 0.123 * 25.4), App.Rotation())
sketch7.addGeometry([
    Part.Circle(Vector(-83.2, 61.1, 0), Vector(0, 0, 1), 1.3),
    Part.Circle(Vector(-55.8, 33.7, 0), Vector(0, 0, 1), 1.3),
], False)
sketch7.addConstraint([
    Sketcher.Constraint("Equal", 0, 1),
    Sketcher.Constraint("Diameter", 0, Q("0.1 in")),
    Sketcher.Constraint("DistanceX", 0, 3, -1, 1, Q("3.275 in")),
    Sketcher.Constraint("DistanceX", 1, 3, -1, 1, 55.795219),
    Sketcher.Constraint("DistanceY", 1, 3, 0, 3, 27.389781),
    Sketcher.Constraint("DistanceY", -1, 1, 0, 3, 61.138037),
])
pocket6 = body.newObject("PartDesign::Pocket", "Pocket005")
pocket6.Profile = sketch7
pocket6.Type = "ThroughAll"

sketch8 = body.newObject("Sketcher::SketchObject", "Sketch007")
sketch8.AttachmentSupport = (doc.getObject("XY_Plane"), [""])
sketch8.MapMode = "FlatFace"
sketch8.AttachmentOffset = App.Placement(Vector(0, 0, 0.123 * 25.4), App.Rotation())
sketch8.addGeometry([
    Part.LineSegment(Vector(-75, -62.1, 0), Vector(-75, -65.1, 0)),
    Part.LineSegment(Vector(-75, -65.1, 0), Vector(-63.9, -65.1, 0)),
    Part.LineSegment(Vector(-63.9, -65.1, 0), Vector(-63.9, -62.1, 0)),
    Part.LineSegment(Vector(-63.9, -62.1, 0), Vector(-75, -62.1, 0)),
], False)
sketch8.addConstraint([
    Sketcher.Constraint("Coincident", 0, 2, 1, 1),
    Sketcher.Constraint("Coincident", 1, 2, 2, 1),
    Sketcher.Constraint("Coincident", 2, 2, 3, 1),
    Sketcher.Constraint("Coincident", 3, 2, 0, 1),
    Sketcher.Constraint("Vertical", 0),
    Sketcher.Constraint("Horizontal", 1),
    Sketcher.Constraint("Vertical", 2),
    Sketcher.Constraint("Horizontal", 3),
    Sketcher.Constraint("DistanceX", 1, 1, 1, 2, Q("0.4375 in")),
    Sketcher.Constraint("DistanceY", 0, 2, 0, 1, Q("0.118 in")),
    Sketcher.Constraint("DistanceY", 0, 2, -1, 1, Q("2.5625 in")),
    Sketcher.Constraint("DistanceX", 0, 2, -1, 1, 75.046359),
])
pocket7 = body.newObject("PartDesign::Pocket", "Pocket006")
pocket7.Profile = sketch8
pocket7.Type = "ThroughAll"

doc.recompute()
